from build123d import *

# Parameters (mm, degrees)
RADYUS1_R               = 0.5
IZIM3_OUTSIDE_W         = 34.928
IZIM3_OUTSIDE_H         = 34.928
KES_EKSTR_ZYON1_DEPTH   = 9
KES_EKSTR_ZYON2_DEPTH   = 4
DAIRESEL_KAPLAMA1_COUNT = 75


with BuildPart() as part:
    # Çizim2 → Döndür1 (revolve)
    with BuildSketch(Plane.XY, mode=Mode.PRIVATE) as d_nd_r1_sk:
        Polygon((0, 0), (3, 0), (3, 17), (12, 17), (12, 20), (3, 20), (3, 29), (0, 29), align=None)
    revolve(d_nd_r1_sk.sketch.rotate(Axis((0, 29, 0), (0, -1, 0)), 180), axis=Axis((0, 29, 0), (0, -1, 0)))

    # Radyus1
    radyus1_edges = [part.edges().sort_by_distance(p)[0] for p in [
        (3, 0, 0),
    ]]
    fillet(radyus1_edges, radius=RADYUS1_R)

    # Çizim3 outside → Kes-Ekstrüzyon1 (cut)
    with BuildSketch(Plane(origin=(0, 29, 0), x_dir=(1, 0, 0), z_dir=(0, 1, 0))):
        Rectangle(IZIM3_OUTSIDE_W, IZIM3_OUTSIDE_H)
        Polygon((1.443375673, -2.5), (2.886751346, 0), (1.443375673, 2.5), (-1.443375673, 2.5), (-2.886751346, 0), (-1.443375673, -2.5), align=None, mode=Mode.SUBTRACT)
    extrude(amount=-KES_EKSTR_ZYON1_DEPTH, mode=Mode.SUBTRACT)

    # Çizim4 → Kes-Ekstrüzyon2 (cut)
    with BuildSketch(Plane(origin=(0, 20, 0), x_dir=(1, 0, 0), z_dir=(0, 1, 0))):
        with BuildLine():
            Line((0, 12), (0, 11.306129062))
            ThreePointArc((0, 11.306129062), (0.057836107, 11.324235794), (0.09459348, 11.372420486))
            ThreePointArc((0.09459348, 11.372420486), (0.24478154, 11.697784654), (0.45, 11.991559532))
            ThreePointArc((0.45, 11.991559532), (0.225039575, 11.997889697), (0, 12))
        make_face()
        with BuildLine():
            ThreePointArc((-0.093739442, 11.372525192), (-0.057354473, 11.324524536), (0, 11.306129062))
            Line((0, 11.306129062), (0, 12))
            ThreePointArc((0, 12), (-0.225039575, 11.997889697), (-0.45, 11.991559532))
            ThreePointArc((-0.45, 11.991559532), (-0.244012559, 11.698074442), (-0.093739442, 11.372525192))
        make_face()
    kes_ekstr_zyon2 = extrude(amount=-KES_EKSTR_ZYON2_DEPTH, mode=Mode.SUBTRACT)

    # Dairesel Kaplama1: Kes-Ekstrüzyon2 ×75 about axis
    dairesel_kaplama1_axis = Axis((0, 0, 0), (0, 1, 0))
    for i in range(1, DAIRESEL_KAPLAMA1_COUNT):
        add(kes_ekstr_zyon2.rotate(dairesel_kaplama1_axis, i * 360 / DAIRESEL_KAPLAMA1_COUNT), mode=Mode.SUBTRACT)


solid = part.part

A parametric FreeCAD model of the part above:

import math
import FreeCAD as App
import Part
import Sketcher
from FreeCAD import Vector
Q = App.Units.Quantity


def edges_at(feature, points):
    """Names of the edges that pass closest to the given points."""
    edges = feature.Shape.Edges
    near = lambda p: min(range(len(edges)), key=lambda i: edges[i].distToShape(Part.Vertex(*p))[0])
    return sorted({f"Edge{near(p) + 1}" for p in points})

doc = App.newDocument("Part")
params = doc.addObject("Spreadsheet::Sheet", "Params")
for row, (alias, value) in enumerate([
    ("sketch1_width", "3 mm"),
    ("sketch1_width2", "9 mm"),
    ("sketch1_height", "17 mm"),
    ("revolution_angle", "360 deg"),
    ("fillet_radius", "0.5 mm"),
    ("pocket1_length", "9 mm"),
    ("sketch3_radius", "2 mm"),
    ("sketch3_radius2", "0.1 mm"),
    ("pocket2_length", "4 mm"),
], start=1):
    params.set(f"A{row}", alias)
    params.set(f"B{row}", "=" + value)
    params.setAlias(f"B{row}", alias)

body = doc.addObject("PartDesign::Body", "Body")

# Sketch on XY plane
sketch1 = body.newObject("Sketcher::SketchObject", "Sketch")
sketch1.AttachmentSupport = (doc.getObject("XY_Plane"), [""])
sketch1.MapMode = "FlatFace"
sketch1.addGeometry([
    Part.LineSegment(Vector(0, 0, 0), Vector(3, 0, 0)),  # 0
    Part.LineSegment(Vector(3, 0, 0), Vector(3, 17, 0)),  # 1
    Part.LineSegment(Vector(3, 17, 0), Vector(12, 17, 0)),  # 2
    Part.LineSegment(Vector(12, 17, 0), Vector(12, 20, 0)),  # 3
    Part.LineSegment(Vector(12, 20, 0), Vector(3, 20, 0)),  # 4
    Part.LineSegment(Vector(3, 20, 0), Vector(3, 29, 0)),  # 5
    Part.LineSegment(Vector(3, 29, 0), Vector(0, 29, 0)),  # 6
    Part.LineSegment(Vector(0, 29, 0), Vector(0, 0, 0)),  # 7
], False)
sketch1.addConstraint([
    Sketcher.Constraint("Coincident", 0, 2, 1, 1),
    Sketcher.Constraint("Coincident", 1, 2, 2, 1),
    Sketcher.Constraint("Coincident", 2, 2, 3, 1),
    Sketcher.Constraint("Coincident", 3, 2, 4, 1),
    Sketcher.Constraint("Coincident", 4, 2, 5, 1),
    Sketcher.Constraint("Coincident", 5, 2, 6, 1),
    Sketcher.Constraint("Coincident", 6, 2, 7, 1),
    Sketcher.Constraint("Coincident", 7, 2, 0, 1),
    Sketcher.Constraint("Horizontal", 0),
    Sketcher.Constraint("Vertical", 1),
    Sketcher.Constraint("Horizontal", 2),
    Sketcher.Constraint("Vertical", 3),
    Sketcher.Constraint("Horizontal", 4),
    Sketcher.Constraint("Vertical", 5),
    Sketcher.Constraint("Horizontal", 6),
    Sketcher.Constraint("Vertical", 7),
    Sketcher.Constraint("Coincident", 7, 2, -1, 1),
    Sketcher.Constraint("Vertical", 1, 2, 4, 2),
    Sketcher.Constraint("Equal", 6, 3),
    Sketcher.Constraint("Equal", 4, 5),
    Sketcher.Constraint("DistanceX", 0, 1, 0, 2, 3.0),
    Sketcher.Constraint("DistanceX", 2, 1, 2, 2, 9.0),
    Sketcher.Constraint("DistanceY", 1, 1, 1, 2, 17.0),
])
sketch1.setExpression("Constraints[20]", "Params.sketch1_width")
sketch1.setExpression("Constraints[21]", "Params.sketch1_width2")
sketch1.setExpression("Constraints[22]", "Params.sketch1_height")
revolution = body.newObject("PartDesign::Revolution", "Revolution")
revolution.Profile = sketch1
revolution.ReferenceAxis = (sketch1, ["V_Axis"])
revolution.setExpression("Angle", "Params.revolution_angle")
doc.recompute()

fillet = body.newObject("PartDesign::Fillet", "Fillet")
fillet.Base = (revolution, edges_at(revolution, [(3, 0, 0)]))
fillet.setExpression("Radius", "Params.fillet_radius")

# Sketch on XZ plane
sketch2 = body.newObject("Sketcher::SketchObject", "Sketch001")
sketch2.AttachmentSupport = (doc.getObject("XZ_Plane"), [""])
sketch2.MapMode = "FlatFace"
sketch2.AttachmentOffset = App.Placement(Vector(0, 0, -29), App.Rotation())
sketch2.addGeometry([
    Part.LineSegment(Vector(-17.5, -17.5, 0), Vector(-17.5, 17.5, 0)),  # 0
    Part.LineSegment(Vector(-17.5, 17.5, 0), Vector(17.5, 17.5, 0)),  # 1
    Part.LineSegment(Vector(17.5, 17.5, 0), Vector(17.5, -17.5, 0)),  # 2
    Part.LineSegment(Vector(17.5, -17.5, 0), Vector(-17.5, -17.5, 0)),  # 3
    Part.LineSegment(Vector(2.9, 0, 0), Vector(1.4, 2.5, 0)),  # 4
    Part.LineSegment(Vector(1.4, 2.5, 0), Vector(-1.4, 2.5, 0)),  # 5
    Part.LineSegment(Vector(-1.4, 2.5, 0), Vector(-2.9, 0, 0)),  # 6
    Part.LineSegment(Vector(-2.9, 0, 0), Vector(-1.4, -2.5, 0)),  # 7
    Part.LineSegment(Vector(-1.4, -2.5, 0), Vector(1.4, -2.5, 0)),  # 8
    Part.LineSegment(Vector(1.4, -2.5, 0), Vector(2.9, 0, 0)),  # 9
], False)
sketch2.addConstraint([
    Sketcher.Constraint("Coincident", 0, 2, 1, 1),
    Sketcher.Constraint("Coincident", 1, 2, 2, 1),
    Sketcher.Constraint("Coincident", 2, 2, 3, 1),
    Sketcher.Constraint("Coincident", 3, 2, 0, 1),
    Sketcher.Constraint("Coincident", 4, 2, 5, 1),
    Sketcher.Constraint("Coincident", 5, 2, 6, 1),
    Sketcher.Constraint("Coincident", 6, 2, 7, 1),
    Sketcher.Constraint("Coincident", 7, 2, 8, 1),
    Sketcher.Constraint("Coincident", 8, 2, 9, 1),
    Sketcher.Constraint("Coincident", 9, 2, 4, 1),
    Sketcher.Constraint("Vertical", 0),
    Sketcher.Constraint("Horizontal", 1),
    Sketcher.Constraint("Vertical", 2),
    Sketcher.Constraint("Horizontal", 3),
    Sketcher.Constraint("Horizontal", 5),
    Sketcher.Constraint("Horizontal", 8),
    Sketcher.Constraint("Symmetric", 0, 2, 2, 2, -1, 1),
    Sketcher.Constraint("Symmetric", 4, 2, 7, 2, -1, 1),
    Sketcher.Constraint("Symmetric", 6, 2, 9, 2, -1, 1),
    Sketcher.Constraint("PointOnObject", 6, 2, -1),
    Sketcher.Constraint("Parallel", 6, 9),
    Sketcher.Constraint("Vertical", 5, 2, 7, 2),
    Sketcher.Constraint("Equal", 3, 0),
    Sketcher.Constraint("Angle", 4, Q("120 deg")),
    Sketcher.Constraint("DistanceY", 7, 2, 5, 2, 5.0),
    Sketcher.Constraint("DistanceX", 1, 1, 1, 2, 34.928),
    Sketcher.Constraint("DistanceX", 5, 2, 5, 1, 2.886751),
])
pocket1 = body.newObject("PartDesign::Pocket", "Pocket")
pocket1.Profile = sketch2
pocket1.setExpression("Length", "Params.pocket1_length")
pocket1.Reversed = True

# Sketch on XZ plane
sketch3 = body.newObject("Sketcher::SketchObject", "Sketch002")
sketch3.AttachmentSupport = (doc.getObject("XZ_Plane"), [""])
sketch3.MapMode = "FlatFace"
sketch3.AttachmentOffset = App.Placement(Vector(0, 0, -20), App.Rotation())
sketch3.addGeometry([
    Part.ArcOfCircle(Part.Circle(Vector(0, -11.41, 0), Vector(0, 0, 1), 0.1), math.radians(20), math.radians(90)),  # 0
    Part.ArcOfCircle(Part.Circle(Vector(2, -10.69, 0), Vector(0, 0, 1), 2.02), math.radians(-160), math.radians(-140)),  # 1
    Part.ArcOfCircle(Part.Circle(Vector(0, 0, 0), Vector(0, 0, 1), 12), math.radians(-90), math.radians(-87.85)),  # 2
    Part.ArcOfCircle(Part.Circle(Vector(0, 0, 0), Vector(0, 0, 1), 12), math.radians(-92.15), math.radians(-90)),  # 3
    Part.ArcOfCircle(Part.Circle(Vector(-1.98, -10.7, 0), Vector(0, 0, 1), 2), math.radians(-40), math.radians(-20)),  # 4
    Part.ArcOfCircle(Part.Circle(Vector(0, -11.41, 0), Vector(0, 0, 1), 0.1), math.radians(90), math.radians(160)),  # 5
], False)
sketch3.addConstraint([
    Sketcher.Constraint("Tangent", 0, 1, 1, 1),
    Sketcher.Constraint("Coincident", 1, 2, 2, 2),
    Sketcher.Constraint("Tangent", 2, 1, 3, 2),
    Sketcher.Constraint("Coincident", 3, 1, 4, 1),
    Sketcher.Constraint("Tangent", 4, 2, 5, 2),
    Sketcher.Constraint("Tangent", 5, 1, 0, 2),
    Sketcher.Constraint("Coincident", 2, 3, -1, 1),
    Sketcher.Constraint("Equal", 2, 3),
    Sketcher.Constraint("Equal", 0, 5),
    Sketcher.Constraint("PointOnObject", 2, 1, -2),
    Sketcher.Constraint("PointOnObject", 5, 1, -2),
    Sketcher.Constraint("Horizontal", 1, 2, 3, 1),
    Sketcher.Constraint("Radius", 4, 2.0),
    Sketcher.Constraint("Radius", 0, 0.1),
    Sketcher.Constraint("DistanceX", -1, 1, 1, 3, 2.0),
    Sketcher.Constraint("DistanceY", 2, 1, -1, 1, 12.0),
    Sketcher.Constraint("DistanceX", 3, 1, 1, 2, 0.9),
    Sketcher.Constraint("Radius", 1, 2.023847),
    Sketcher.Constraint("DistanceY", 0, 3, -1, 1, 11.406128),
])
sketch3.setExpression("Constraints[12]", "Params.sketch3_radius")
sketch3.setExpression("Constraints[13]", "Params.sketch3_radius2")
pocket2 = body.newObject("PartDesign::Pocket", "Pocket001")
pocket2.Profile = sketch3
pocket2.setExpression("Length", "Params.pocket2_length")
pocket2.Reversed = True
doc.recompute()

polarpattern = body.newObject("PartDesign::PolarPattern", "PolarPattern")
polarpattern.Originals = [pocket2]
polarpattern.Axis = (doc.getObject("Y_Axis"), [""])
polarpattern.Angle = 360
polarpattern.Occurrences = 75
body.Tip = polarpattern

doc.recompute()
